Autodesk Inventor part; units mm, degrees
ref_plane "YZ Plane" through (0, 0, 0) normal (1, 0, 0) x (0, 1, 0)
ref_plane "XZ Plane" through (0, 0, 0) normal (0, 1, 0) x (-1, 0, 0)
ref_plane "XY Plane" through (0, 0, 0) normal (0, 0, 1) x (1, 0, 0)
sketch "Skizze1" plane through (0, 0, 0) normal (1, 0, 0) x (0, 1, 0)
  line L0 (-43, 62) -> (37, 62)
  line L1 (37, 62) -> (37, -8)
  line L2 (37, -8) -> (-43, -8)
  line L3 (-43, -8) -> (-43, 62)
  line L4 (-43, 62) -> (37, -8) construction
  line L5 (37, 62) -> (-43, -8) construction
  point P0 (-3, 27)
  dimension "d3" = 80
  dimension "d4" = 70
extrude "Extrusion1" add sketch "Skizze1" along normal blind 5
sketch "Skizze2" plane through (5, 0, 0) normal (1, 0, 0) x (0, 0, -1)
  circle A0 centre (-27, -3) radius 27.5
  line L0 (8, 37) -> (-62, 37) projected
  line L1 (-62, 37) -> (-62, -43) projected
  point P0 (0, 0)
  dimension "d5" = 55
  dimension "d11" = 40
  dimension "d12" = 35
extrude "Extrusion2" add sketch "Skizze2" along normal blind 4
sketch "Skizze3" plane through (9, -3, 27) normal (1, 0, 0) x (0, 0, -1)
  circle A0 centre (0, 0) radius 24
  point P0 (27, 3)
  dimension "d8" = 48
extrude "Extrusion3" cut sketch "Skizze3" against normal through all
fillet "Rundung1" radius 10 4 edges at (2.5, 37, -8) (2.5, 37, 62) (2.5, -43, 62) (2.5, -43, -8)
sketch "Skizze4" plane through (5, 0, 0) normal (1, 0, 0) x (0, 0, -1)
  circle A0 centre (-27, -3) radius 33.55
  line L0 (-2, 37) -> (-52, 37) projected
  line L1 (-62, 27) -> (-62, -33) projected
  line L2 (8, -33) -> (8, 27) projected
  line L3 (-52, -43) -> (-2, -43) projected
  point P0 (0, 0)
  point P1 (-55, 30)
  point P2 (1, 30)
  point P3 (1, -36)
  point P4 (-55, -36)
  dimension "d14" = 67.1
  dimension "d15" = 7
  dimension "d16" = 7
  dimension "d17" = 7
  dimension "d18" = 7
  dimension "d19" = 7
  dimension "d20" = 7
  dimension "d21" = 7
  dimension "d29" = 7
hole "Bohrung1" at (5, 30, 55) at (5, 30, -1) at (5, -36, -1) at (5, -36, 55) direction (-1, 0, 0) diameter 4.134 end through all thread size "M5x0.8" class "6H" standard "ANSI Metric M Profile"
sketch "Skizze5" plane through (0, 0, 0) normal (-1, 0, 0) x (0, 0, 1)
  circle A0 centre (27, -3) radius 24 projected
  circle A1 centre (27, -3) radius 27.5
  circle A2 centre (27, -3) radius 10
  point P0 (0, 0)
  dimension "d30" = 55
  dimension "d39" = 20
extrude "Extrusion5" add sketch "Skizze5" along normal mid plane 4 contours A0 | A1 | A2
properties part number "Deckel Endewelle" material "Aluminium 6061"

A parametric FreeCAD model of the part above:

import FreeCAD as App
import Part
import Sketcher

V = App.Vector


def edges_at(feature, points):
    """Names of the edges that pass closest to the given points."""
    edges = feature.Shape.Edges
    near = lambda p: min(range(len(edges)), key=lambda i: edges[i].distToShape(Part.Vertex(*p))[0])
    return sorted({f"Edge{near(p) + 1}" for p in points})

doc = App.newDocument("Part")
body = doc.addObject("PartDesign::Body", "Body")

sketch1 = doc.addObject("Sketcher::SketchObject", "Sketch")
body.addObject(sketch1)
sketch1.AttachmentSupport = (doc.YZ_Plane, [""])
sketch1.MapMode = "FlatFace"
sketch1.addGeometry([
    Part.LineSegment(V(37, 62, 0), V(-43, 62, 0)),
    Part.LineSegment(V(-43, 62, 0), V(-43, -8, 0)),
    Part.LineSegment(V(-43, -8, 0), V(37, -8, 0)),
    Part.LineSegment(V(37, -8, 0), V(37, 62, 0)),
], False)
sketch1.addConstraint([
    Sketcher.Constraint("Coincident", 0, 2, 1, 1),
    Sketcher.Constraint("Coincident", 1, 2, 2, 1),
    Sketcher.Constraint("Coincident", 2, 2, 3, 1),
    Sketcher.Constraint("Coincident", 3, 2, 0, 1),
    Sketcher.Constraint("Horizontal", 0),
    Sketcher.Constraint("Vertical", 1),
    Sketcher.Constraint("Horizontal", 2),
    Sketcher.Constraint("Vertical", 3),
    Sketcher.Constraint("DistanceX", 0, 2, 0, 1, 80.0),
    Sketcher.Constraint("DistanceY", 1, 2, 1, 1, 70.0),
    Sketcher.Constraint("DistanceX", 0, 2, -1, 1, 43.0),
    Sketcher.Constraint("DistanceY", -1, 1, 0, 2, 62.0),
])
pad1 = doc.addObject("PartDesign::Pad", "Pad")
body.addObject(pad1)
pad1.Profile = sketch1
pad1.Length = 5

sketch2 = doc.addObject("Sketcher::SketchObject", "Sketch001")
body.addObject(sketch2)
sketch2.AttachmentSupport = (doc.YZ_Plane, [""])
sketch2.MapMode = "FlatFace"
sketch2.AttachmentOffset = App.Placement(V(0, 0, 5), App.Rotation())
sketch2.addGeometry(Part.Circle(V(-3, 27, 0), V(0, 0, 1), 28), False)
sketch2.addConstraint([
    Sketcher.Constraint("Diameter", 0, 55.0),
    Sketcher.Constraint("DistanceX", 0, 3, -1, 1, 3.0),
    Sketcher.Constraint("DistanceY", -1, 1, 0, 3, 27.0),
])
pad2 = doc.addObject("PartDesign::Pad", "Pad001")
body.addObject(pad2)
pad2.Profile = sketch2
pad2.Length = 4

sketch3 = doc.addObject("Sketcher::SketchObject", "Sketch002")
body.addObject(sketch3)
sketch3.AttachmentSupport = (doc.YZ_Plane, [""])
sketch3.MapMode = "FlatFace"
sketch3.AttachmentOffset = App.Placement(V(0, 0, 9), App.Rotation())
sketch3.addGeometry(Part.Circle(V(-3, 27, 0), V(0, 0, 1), 24), False)
sketch3.addConstraint([
    Sketcher.Constraint("Diameter", 0, 48.0),
    Sketcher.Constraint("DistanceX", 0, 3, -1, 1, 3.0),
    Sketcher.Constraint("DistanceY", -1, 1, 0, 3, 27.0),
])
pocket1 = doc.addObject("PartDesign::Pocket", "Pocket")
body.addObject(pocket1)
pocket1.Profile = sketch3
pocket1.Type = "ThroughAll"
doc.recompute()

fillet = doc.addObject("PartDesign::Fillet", "Fillet")
body.addObject(fillet)
fillet.Base = (pocket1, edges_at(pocket1, [
    (2.5, 37, -8),
    (2.5, 37, 62),
    (2.5, -43, 62),
    (2.5, -43, -8),
]))
fillet.Radius = 10

sketch4 = doc.addObject("Sketcher::SketchObject", "Sketch003")
body.addObject(sketch4)
sketch4.AttachmentSupport = (doc.YZ_Plane, [""])
sketch4.MapMode = "FlatFace"
sketch4.AttachmentOffset = App.Placement(V(0, 0, 5), App.Rotation())
sketch4.addGeometry([
    Part.Circle(V(30, 55, 0), V(0, 0, 1), 2.1),
    Part.Circle(V(30, -1, 0), V(0, 0, 1), 2.1),
    Part.Circle(V(-36, -1, 0), V(0, 0, 1), 2.1),
    Part.Circle(V(-36, 55, 0), V(0, 0, 1), 2.1),
], False)
sketch4.addConstraint([
    Sketcher.Constraint("Equal", 0, 1),
    Sketcher.Constraint("Equal", 1, 2),
    Sketcher.Constraint("Equal", 2, 3),
    Sketcher.Constraint("Horizontal", 1, 3, 2, 3),
    Sketcher.Constraint("Horizontal", 0, 3, 3, 3),
    Sketcher.Constraint("Vertical", 0, 3, 1, 3),
    Sketcher.Constraint("Vertical", 2, 3, 3, 3),
    Sketcher.Constraint("Diameter", 0, 4.134),
    Sketcher.Constraint("DistanceX", -1, 1, 0, 3, 30.0),
    Sketcher.Constraint("DistanceY", -1, 1, 0, 3, 55.0),
    Sketcher.Constraint("DistanceY", 1, 3, -1, 1, 1.0),
    Sketcher.Constraint("DistanceX", 2, 3, -1, 1, 36.0),
])
doc.recompute()
hole = doc.addObject("PartDesign::Hole", "Hole")
body.addObject(hole)
hole.Profile = sketch4
hole.ThreadType = "None"
hole.Diameter = 4.134
hole.DepthType = "ThroughAll"

sketch5 = doc.addObject("Sketcher::SketchObject", "Sketch004")
body.addObject(sketch5)
sketch5.AttachmentSupport = (doc.YZ_Plane, [""])
sketch5.MapMode = "FlatFace"
sketch5.addGeometry(Part.Circle(V(-3, 27, 0), V(0, 0, 1), 28), False)
sketch5.addConstraint([
    Sketcher.Constraint("Diameter", 0, 55.0),
    Sketcher.Constraint("DistanceX", 0, 3, -1, 1, 3.0),
    Sketcher.Constraint("DistanceY", -1, 1, 0, 3, 27.0),
])
pad3 = doc.addObject("PartDesign::Pad", "Pad002")
body.addObject(pad3)
pad3.Profile = sketch5
pad3.Length = 4
pad3.Midplane = True

doc.recompute()
